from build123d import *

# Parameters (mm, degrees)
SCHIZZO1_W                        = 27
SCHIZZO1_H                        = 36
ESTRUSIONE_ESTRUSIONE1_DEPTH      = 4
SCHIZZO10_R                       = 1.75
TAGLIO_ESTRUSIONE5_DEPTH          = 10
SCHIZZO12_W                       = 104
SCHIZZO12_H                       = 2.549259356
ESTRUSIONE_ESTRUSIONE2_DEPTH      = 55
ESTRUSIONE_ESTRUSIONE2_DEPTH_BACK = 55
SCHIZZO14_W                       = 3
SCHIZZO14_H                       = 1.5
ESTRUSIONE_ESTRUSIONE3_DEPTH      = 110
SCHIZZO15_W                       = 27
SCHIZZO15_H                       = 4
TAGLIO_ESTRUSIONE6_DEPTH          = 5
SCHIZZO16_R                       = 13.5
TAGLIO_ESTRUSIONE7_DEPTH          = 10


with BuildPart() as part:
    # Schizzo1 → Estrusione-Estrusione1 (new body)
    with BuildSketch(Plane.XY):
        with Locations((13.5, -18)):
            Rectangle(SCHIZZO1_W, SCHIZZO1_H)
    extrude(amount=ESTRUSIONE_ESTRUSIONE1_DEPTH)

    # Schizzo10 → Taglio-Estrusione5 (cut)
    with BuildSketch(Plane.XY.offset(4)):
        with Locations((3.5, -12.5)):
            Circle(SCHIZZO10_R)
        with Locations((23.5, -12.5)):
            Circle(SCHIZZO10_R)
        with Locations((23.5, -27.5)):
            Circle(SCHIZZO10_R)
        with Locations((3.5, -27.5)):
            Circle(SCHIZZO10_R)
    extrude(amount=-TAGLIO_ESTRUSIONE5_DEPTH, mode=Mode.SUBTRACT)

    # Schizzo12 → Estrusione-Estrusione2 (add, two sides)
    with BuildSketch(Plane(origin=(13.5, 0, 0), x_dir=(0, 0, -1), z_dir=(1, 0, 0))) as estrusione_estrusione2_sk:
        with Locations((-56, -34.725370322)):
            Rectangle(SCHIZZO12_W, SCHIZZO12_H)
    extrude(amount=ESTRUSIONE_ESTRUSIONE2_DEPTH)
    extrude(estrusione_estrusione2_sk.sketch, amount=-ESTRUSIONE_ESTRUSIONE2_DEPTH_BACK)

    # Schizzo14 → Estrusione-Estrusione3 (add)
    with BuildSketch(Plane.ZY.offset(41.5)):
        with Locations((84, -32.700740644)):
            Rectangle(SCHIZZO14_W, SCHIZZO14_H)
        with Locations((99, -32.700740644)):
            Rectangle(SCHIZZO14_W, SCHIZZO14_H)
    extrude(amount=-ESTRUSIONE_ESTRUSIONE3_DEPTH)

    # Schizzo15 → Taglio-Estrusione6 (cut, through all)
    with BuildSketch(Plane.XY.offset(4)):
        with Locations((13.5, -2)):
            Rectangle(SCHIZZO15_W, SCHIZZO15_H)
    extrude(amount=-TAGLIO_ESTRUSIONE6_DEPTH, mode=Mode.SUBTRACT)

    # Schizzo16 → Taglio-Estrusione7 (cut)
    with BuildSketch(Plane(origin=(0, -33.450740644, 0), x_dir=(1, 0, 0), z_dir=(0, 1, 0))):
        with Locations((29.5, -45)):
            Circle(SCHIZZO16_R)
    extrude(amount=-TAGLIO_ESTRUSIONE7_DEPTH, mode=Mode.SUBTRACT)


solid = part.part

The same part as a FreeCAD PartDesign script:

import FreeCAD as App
import Part
import Sketcher

V = App.Vector
Q = App.Units.Quantity


def add_polygon(sketch, points):
    """Adds a closed chain of lines whose ends are joined by coincident constraints."""
    first, n = sketch.GeometryCount, len(points)
    for a, b in zip(points, points[1:] + points[:1]):
        sketch.addGeometry(Part.LineSegment(App.Vector(*a, 0), App.Vector(*b, 0)), False)
    for i in range(n):
        sketch.addConstraint(Sketcher.Constraint("Coincident", first + i, 2, first + (i + 1) % n, 1))

doc = App.newDocument("Part")
body = doc.addObject("PartDesign::Body", "Body")

# Sketch on XY plane
sketch1 = body.newObject("Sketcher::SketchObject", "Sketch")
sketch1.AttachmentSupport = (doc.getObject("XY_Plane"), [""])
sketch1.MapMode = "FlatFace"
add_polygon(sketch1, [(0, 0), (0, -36), (27, -36), (27, 0)])  # lines 0-3
sketch1.addConstraint(Sketcher.Constraint("Vertical", 0))
sketch1.addConstraint(Sketcher.Constraint("Horizontal", 1))
sketch1.addConstraint(Sketcher.Constraint("Vertical", 2))
sketch1.addConstraint(Sketcher.Constraint("Horizontal", 3))
sketch1.addConstraint(Sketcher.Constraint("Coincident", 3, 2, -1, 1))
sketch1.addConstraint(Sketcher.Constraint("DistanceX", 1, 1, 1, 2, Q("27 mm")))
sketch1.addConstraint(Sketcher.Constraint("DistanceY", 0, 2, 0, 1, Q("36 mm")))
pad1 = body.newObject("PartDesign::Pad", "Pad")
pad1.Profile = sketch1
pad1.Length = 4

# Sketch on XY plane
sketch2 = body.newObject("Sketcher::SketchObject", "Sketch001")
sketch2.AttachmentSupport = (doc.getObject("XY_Plane"), [""])
sketch2.MapMode = "FlatFace"
sketch2.AttachmentOffset = App.Placement(V(0, 0, 4), App.Rotation())
sketch2.addGeometry(Part.Circle(V(3.5, -12.5, 0), V(0, 0, 1), 1.75), False)
sketch2.addGeometry(Part.Circle(V(23.5, -12.5, 0), V(0, 0, 1), 1.75), False)
sketch2.addGeometry(Part.Circle(V(23.5, -27.5, 0), V(0, 0, 1), 1.75), False)
sketch2.addGeometry(Part.Circle(V(3.5, -27.5, 0), V(0, 0, 1), 1.75), False)
sketch2.addConstraint(Sketcher.Constraint("Equal", 0, 1))
sketch2.addConstraint(Sketcher.Constraint("Equal", 1, 2))
sketch2.addConstraint(Sketcher.Constraint("Equal", 2, 3))
sketch2.addConstraint(Sketcher.Constraint("Horizontal", 0, 3, 1, 3))
sketch2.addConstraint(Sketcher.Constraint("Horizontal", 2, 3, 3, 3))
sketch2.addConstraint(Sketcher.Constraint("Vertical", 1, 3, 2, 3))
sketch2.addConstraint(Sketcher.Constraint("Vertical", 0, 3, 3, 3))
sketch2.addConstraint(Sketcher.Constraint("Diameter", 0, Q("3.5 mm")))
sketch2.addConstraint(Sketcher.Constraint("DistanceX", 0, 3, 1, 3, Q("20 mm")))
sketch2.addConstraint(Sketcher.Constraint("DistanceY", 2, 3, 1, 3, Q("15 mm")))
sketch2.addConstraint(Sketcher.Constraint("DistanceX", -1, 1, 0, 3, Q("3.5 mm")))
sketch2.addConstraint(Sketcher.Constraint("DistanceY", 0, 3, -1, 1, Q("12.5 mm")))
pocket1 = body.newObject("PartDesign::Pocket", "Pocket")
pocket1.Profile = sketch2
pocket1.Length = 10

# Sketch on YZ plane
sketch3 = body.newObject("Sketcher::SketchObject", "Sketch002")
sketch3.AttachmentSupport = (doc.getObject("YZ_Plane"), [""])
sketch3.MapMode = "FlatFace"
sketch3.AttachmentOffset = App.Placement(V(0, 0, 13.5), App.Rotation())
add_polygon(sketch3, [(-33.450741, 108), (-36, 108), (-36, 4), (-33.450741, 4)])  # lines 0-3
sketch3.addConstraint(Sketcher.Constraint("Horizontal", 0))
sketch3.addConstraint(Sketcher.Constraint("Vertical", 1))
sketch3.addConstraint(Sketcher.Constraint("Horizontal", 2))
sketch3.addConstraint(Sketcher.Constraint("Vertical", 3))
sketch3.addConstraint(Sketcher.Constraint("DistanceY", 1, 2, 1, 1, Q("104 mm")))
sketch3.addConstraint(Sketcher.Constraint("DistanceX", 0, 2, -1, 1, Q("36 mm")))
sketch3.addConstraint(Sketcher.Constraint("DistanceY", -1, 1, 0, 2, Q("108 mm")))
sketch3.addConstraint(Sketcher.Constraint("DistanceX", 0, 2, 0, 1, Q("2.549259 mm")))
pad2 = body.newObject("PartDesign::Pad", "Pad001")
pad2.Profile = sketch3
pad2.Type = "TwoLengths"
pad2.Length = 55
pad2.Length2 = 55

# Sketch on YZ plane
sketch4 = body.newObject("Sketcher::SketchObject", "Sketch003")
sketch4.AttachmentSupport = (doc.getObject("YZ_Plane"), [""])
sketch4.MapMode = "FlatFace"
sketch4.AttachmentOffset = App.Placement(V(0, 0, -41.5), App.Rotation())
add_polygon(sketch4, [(-31.950741, 82.5), (-33.450741, 82.5), (-33.450741, 85.5), (-31.950741, 85.5)])  # lines 0-3
add_polygon(sketch4, [(-31.950741, 97.5), (-33.450741, 97.5), (-33.450741, 100.5), (-31.950741, 100.5)])  # lines 4-7
sketch4.addConstraint(Sketcher.Constraint("Horizontal", 0))
sketch4.addConstraint(Sketcher.Constraint("Vertical", 1))
sketch4.addConstraint(Sketcher.Constraint("Horizontal", 2))
sketch4.addConstraint(Sketcher.Constraint("Vertical", 3))
sketch4.addConstraint(Sketcher.Constraint("Horizontal", 4))
sketch4.addConstraint(Sketcher.Constraint("Vertical", 5))
sketch4.addConstraint(Sketcher.Constraint("Horizontal", 6))
sketch4.addConstraint(Sketcher.Constraint("Vertical", 7))
sketch4.addConstraint(Sketcher.Constraint("Vertical", 1, 2, 4, 2))
sketch4.addConstraint(Sketcher.Constraint("Vertical", 3, 2, 6, 2))
sketch4.addConstraint(Sketcher.Constraint("Equal", 3, 5))
sketch4.addConstraint(Sketcher.Constraint("DistanceY", 1, 1, 1, 2, Q("3 mm")))
sketch4.addConstraint(Sketcher.Constraint("DistanceX", 0, 2, 0, 1, Q("1.5 mm")))
sketch4.addConstraint(Sketcher.Constraint("DistanceY", 1, 2, 4, 2, Q("12 mm")))
sketch4.addConstraint(Sketcher.Constraint("DistanceY", -1, 1, 0, 2, Q("82.5 mm")))
sketch4.addConstraint(Sketcher.Constraint("DistanceX", 0, 2, -1, 1, Q("33.450741 mm")))
pad3 = body.newObject("PartDesign::Pad", "Pad002")
pad3.Profile = sketch4
pad3.Length = 110

# Sketch on XY plane
sketch5 = body.newObject("Sketcher::SketchObject", "Sketch004")
sketch5.AttachmentSupport = (doc.getObject("XY_Plane"), [""])
sketch5.MapMode = "FlatFace"
sketch5.AttachmentOffset = App.Placement(V(0, 0, 4), App.Rotation())
add_polygon(sketch5, [(0, 0), (0, -4), (27, -4), (27, 0)])  # lines 0-3
sketch5.addConstraint(Sketcher.Constraint("Vertical", 0))
sketch5.addConstraint(Sketcher.Constraint("Horizontal", 1))
sketch5.addConstraint(Sketcher.Constraint("Vertical", 2))
sketch5.addConstraint(Sketcher.Constraint("Horizontal", 3))
sketch5.addConstraint(Sketcher.Constraint("Coincident", 3, 2, -1, 1))
sketch5.addConstraint(Sketcher.Constraint("DistanceX", 1, 1, 1, 2, Q("27 mm")))
sketch5.addConstraint(Sketcher.Constraint("DistanceY", 0, 2, 0, 1, Q("4 mm")))
pocket2 = body.newObject("PartDesign::Pocket", "Pocket001")
pocket2.Profile = sketch5
pocket2.Type = "ThroughAll"

# Sketch on XZ plane
sketch6 = body.newObject("Sketcher::SketchObject", "Sketch005")
sketch6.AttachmentSupport = (doc.getObject("XZ_Plane"), [""])
sketch6.MapMode = "FlatFace"
sketch6.AttachmentOffset = App.Placement(V(0, 0, 33.450741), App.Rotation())
sketch6.addGeometry(Part.Circle(V(29.5, 45, 0), V(0, 0, 1), 13.5), False)
sketch6.addConstraint(Sketcher.Constraint("Diameter", 0, Q("27 mm")))
sketch6.addConstraint(Sketcher.Constraint("DistanceY", -1, 1, 0, 3, Q("45 mm")))
sketch6.addConstraint(Sketcher.Constraint("DistanceX", -1, 1, 0, 3, Q("29.5 mm")))
pocket3 = body.newObject("PartDesign::Pocket", "Pocket002")
pocket3.Profile = sketch6
pocket3.Length = 10
pocket3.Reversed = True

doc.recompute()
